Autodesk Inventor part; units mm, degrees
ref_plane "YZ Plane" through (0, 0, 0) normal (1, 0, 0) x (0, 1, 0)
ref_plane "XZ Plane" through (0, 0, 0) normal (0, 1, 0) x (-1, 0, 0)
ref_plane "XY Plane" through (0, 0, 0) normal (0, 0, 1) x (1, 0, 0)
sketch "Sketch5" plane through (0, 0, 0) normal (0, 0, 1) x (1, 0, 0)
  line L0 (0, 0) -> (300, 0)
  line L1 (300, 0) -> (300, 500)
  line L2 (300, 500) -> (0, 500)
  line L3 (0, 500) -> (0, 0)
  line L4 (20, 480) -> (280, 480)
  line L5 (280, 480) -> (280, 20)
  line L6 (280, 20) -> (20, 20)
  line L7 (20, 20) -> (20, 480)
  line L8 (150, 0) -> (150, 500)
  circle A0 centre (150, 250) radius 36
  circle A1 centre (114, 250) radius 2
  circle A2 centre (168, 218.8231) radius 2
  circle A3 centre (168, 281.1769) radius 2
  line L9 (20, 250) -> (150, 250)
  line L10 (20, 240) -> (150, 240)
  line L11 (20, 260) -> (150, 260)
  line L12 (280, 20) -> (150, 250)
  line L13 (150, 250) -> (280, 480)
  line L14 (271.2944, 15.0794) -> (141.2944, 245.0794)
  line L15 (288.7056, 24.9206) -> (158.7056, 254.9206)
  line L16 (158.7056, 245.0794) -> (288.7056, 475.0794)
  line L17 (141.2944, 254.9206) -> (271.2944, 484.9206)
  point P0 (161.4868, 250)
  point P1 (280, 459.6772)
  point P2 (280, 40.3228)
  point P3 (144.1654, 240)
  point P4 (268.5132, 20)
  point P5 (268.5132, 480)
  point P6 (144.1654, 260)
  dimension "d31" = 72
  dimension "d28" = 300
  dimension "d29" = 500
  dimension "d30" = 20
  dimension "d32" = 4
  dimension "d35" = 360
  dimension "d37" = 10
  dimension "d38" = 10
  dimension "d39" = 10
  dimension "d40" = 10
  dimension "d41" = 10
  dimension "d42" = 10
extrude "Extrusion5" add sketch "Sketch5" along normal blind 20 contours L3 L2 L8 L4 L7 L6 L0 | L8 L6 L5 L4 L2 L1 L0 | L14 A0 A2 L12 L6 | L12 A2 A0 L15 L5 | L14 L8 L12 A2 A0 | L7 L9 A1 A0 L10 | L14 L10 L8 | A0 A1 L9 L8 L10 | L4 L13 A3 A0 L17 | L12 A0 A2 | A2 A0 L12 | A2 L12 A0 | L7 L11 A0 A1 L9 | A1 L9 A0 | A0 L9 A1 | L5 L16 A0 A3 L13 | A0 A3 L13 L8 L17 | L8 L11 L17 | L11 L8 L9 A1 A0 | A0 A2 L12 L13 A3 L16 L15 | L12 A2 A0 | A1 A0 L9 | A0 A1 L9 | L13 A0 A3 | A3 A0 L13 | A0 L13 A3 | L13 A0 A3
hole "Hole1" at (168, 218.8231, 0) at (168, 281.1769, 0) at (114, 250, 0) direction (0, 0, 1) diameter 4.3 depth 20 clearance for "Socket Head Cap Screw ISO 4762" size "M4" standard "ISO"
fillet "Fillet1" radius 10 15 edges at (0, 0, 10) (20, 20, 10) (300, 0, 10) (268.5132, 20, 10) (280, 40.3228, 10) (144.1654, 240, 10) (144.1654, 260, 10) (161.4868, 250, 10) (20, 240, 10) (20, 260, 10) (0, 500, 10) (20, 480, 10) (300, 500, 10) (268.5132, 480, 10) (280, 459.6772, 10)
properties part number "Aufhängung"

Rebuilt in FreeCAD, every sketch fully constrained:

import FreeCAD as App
import Part
import Sketcher


def edges_at(feature, points):
    """Names of the edges that pass closest to the given points."""
    edges = feature.Shape.Edges
    near = lambda p: min(range(len(edges)), key=lambda i: edges[i].distToShape(Part.Vertex(*p))[0])
    return sorted({f"Edge{near(p) + 1}" for p in points})

doc = App.newDocument("Part")
body = doc.addObject("PartDesign::Body", "Body")

sketch1 = doc.addObject("Sketcher::SketchObject", "Sketch")
body.addObject(sketch1)
sketch1.AttachmentSupport = (doc.XY_Plane, [""])
sketch1.MapMode = "FlatFace"
sketch1.addGeometry([
    Part.LineSegment(App.Vector(0, 500, 0), App.Vector(0, 0, 0)),
    Part.LineSegment(App.Vector(0, 0, 0), App.Vector(300, 0, 0)),
    Part.LineSegment(App.Vector(300, 0, 0), App.Vector(300, 500, 0)),
    Part.LineSegment(App.Vector(300, 500, 0), App.Vector(0, 500, 0)),
    Part.LineSegment(App.Vector(20, 480, 0), App.Vector(269, 480, 0)),
    Part.LineSegment(App.Vector(269, 480, 0), App.Vector(144, 260, 0)),
    Part.LineSegment(App.Vector(144, 260, 0), App.Vector(20, 260, 0)),
    Part.LineSegment(App.Vector(20, 260, 0), App.Vector(20, 480, 0)),
    Part.LineSegment(App.Vector(20, 20, 0), App.Vector(20, 240, 0)),
    Part.LineSegment(App.Vector(20, 240, 0), App.Vector(144, 240, 0)),
    Part.LineSegment(App.Vector(144, 240, 0), App.Vector(269, 20, 0)),
    Part.LineSegment(App.Vector(269, 20, 0), App.Vector(20, 20, 0)),
    Part.LineSegment(App.Vector(280, 460, 0), App.Vector(280, 40, 0)),
    Part.LineSegment(App.Vector(280, 40, 0), App.Vector(161, 250, 0)),
    Part.LineSegment(App.Vector(161, 250, 0), App.Vector(280, 460, 0)),
], False)
sketch1.addConstraint([
    Sketcher.Constraint("Coincident", 0, 2, 1, 1),
    Sketcher.Constraint("Coincident", 1, 2, 2, 1),
    Sketcher.Constraint("Coincident", 2, 2, 3, 1),
    Sketcher.Constraint("Coincident", 3, 2, 0, 1),
    Sketcher.Constraint("Coincident", 4, 2, 5, 1),
    Sketcher.Constraint("Coincident", 5, 2, 6, 1),
    Sketcher.Constraint("Coincident", 6, 2, 7, 1),
    Sketcher.Constraint("Coincident", 7, 2, 4, 1),
    Sketcher.Constraint("Coincident", 8, 2, 9, 1),
    Sketcher.Constraint("Coincident", 9, 2, 10, 1),
    Sketcher.Constraint("Coincident", 10, 2, 11, 1),
    Sketcher.Constraint("Coincident", 11, 2, 8, 1),
    Sketcher.Constraint("Coincident", 12, 2, 13, 1),
    Sketcher.Constraint("Coincident", 13, 2, 14, 1),
    Sketcher.Constraint("Coincident", 14, 2, 12, 1),
    Sketcher.Constraint("Vertical", 0),
    Sketcher.Constraint("Horizontal", 1),
    Sketcher.Constraint("Vertical", 2),
    Sketcher.Constraint("Horizontal", 3),
    Sketcher.Constraint("Horizontal", 4),
    Sketcher.Constraint("Horizontal", 6),
    Sketcher.Constraint("Vertical", 7),
    Sketcher.Constraint("Vertical", 8),
    Sketcher.Constraint("Horizontal", 9),
    Sketcher.Constraint("Horizontal", 11),
    Sketcher.Constraint("Vertical", 12),
    Sketcher.Constraint("Coincident", 0, 2, -1, 1),
    Sketcher.Constraint("Parallel", 10, 13),
    Sketcher.Constraint("Parallel", 5, 14),
    Sketcher.Constraint("Vertical", 7, 2, 8, 2),
    Sketcher.Constraint("Vertical", 5, 2, 9, 2),
    Sketcher.Constraint("Vertical", 4, 2, 10, 2),
    Sketcher.Constraint("Equal", 7, 8),
    Sketcher.Constraint("DistanceX", 1, 1, 1, 2, 300.0),
    Sketcher.Constraint("DistanceY", 0, 2, 0, 1, 500.0),
    Sketcher.Constraint("DistanceX", -1, 1, 6, 2, 20.0),
    Sketcher.Constraint("DistanceY", -1, 1, 10, 2, 20.0),
    Sketcher.Constraint("DistanceY", 4, 2, 2, 2, 20.0),
    Sketcher.Constraint("DistanceY", 8, 2, 6, 2, 20.0),
    Sketcher.Constraint("DistanceX", 12, 2, 1, 2, 20.0),
    Sketcher.Constraint("DistanceY", 13, 2, 5, 2, 10.0),
    Sketcher.Constraint("Distance", 5, 252.71),
    Sketcher.Constraint("DistanceX", 4, 1, 4, 2, 248.5132),
    Sketcher.Constraint("DistanceY", 12, 2, 12, 1, 419.3544),
])
pad1 = doc.addObject("PartDesign::Pad", "Pad")
body.addObject(pad1)
pad1.Profile = sketch1
pad1.Length = 20

sketch2 = doc.addObject("Sketcher::SketchObject", "Sketch001")
body.addObject(sketch2)
sketch2.AttachmentSupport = (doc.XY_Plane, [""])
sketch2.MapMode = "FlatFace"
sketch2.addGeometry([
    Part.Circle(App.Vector(168, 218.8, 0), App.Vector(0, 0, 1), 2.1),
    Part.Circle(App.Vector(168, 281.2, 0), App.Vector(0, 0, 1), 2.1),
    Part.Circle(App.Vector(114, 250, 0), App.Vector(0, 0, 1), 2.1),
], False)
sketch2.addConstraint([
    Sketcher.Constraint("Equal", 0, 1),
    Sketcher.Constraint("Equal", 1, 2),
    Sketcher.Constraint("Vertical", 0, 3, 1, 3),
    Sketcher.Constraint("Diameter", 0, 4.3),
    Sketcher.Constraint("DistanceX", -1, 1, 0, 3, 168.0),
    Sketcher.Constraint("DistanceX", -1, 1, 2, 3, 114.0),
    Sketcher.Constraint("DistanceY", -1, 1, 2, 3, 250.0),
    Sketcher.Constraint("DistanceY", -1, 1, 0, 3, 218.823),
    Sketcher.Constraint("DistanceY", -1, 1, 1, 3, 281.177),
])
doc.recompute()
hole = doc.addObject("PartDesign::Hole", "Hole")
body.addObject(hole)
hole.Profile = sketch2
hole.ThreadType = "None"
hole.Diameter = 4.3
hole.DepthType = "Dimension"
hole.Depth = 20
hole.DrillPoint = "Flat"
hole.Reversed = True
doc.recompute()

fillet = doc.addObject("PartDesign::Fillet", "Fillet")
body.addObject(fillet)
fillet.Base = (hole, edges_at(hole, [
    (0, 0, 10),
    (20, 20, 10),
    (300, 0, 10),
    (268.513, 20, 10),
    (280, 40.323, 10),
    (144.165, 240, 10),
    (144.165, 260, 10),
    (161.487, 250, 10),
    (20, 240, 10),
    (20, 260, 10),
    (0, 500, 10),
    (20, 480, 10),
    (300, 500, 10),
    (268.513, 480, 10),
    (280, 459.677, 10),
]))
fillet.Radius = 10

doc.recompute()
